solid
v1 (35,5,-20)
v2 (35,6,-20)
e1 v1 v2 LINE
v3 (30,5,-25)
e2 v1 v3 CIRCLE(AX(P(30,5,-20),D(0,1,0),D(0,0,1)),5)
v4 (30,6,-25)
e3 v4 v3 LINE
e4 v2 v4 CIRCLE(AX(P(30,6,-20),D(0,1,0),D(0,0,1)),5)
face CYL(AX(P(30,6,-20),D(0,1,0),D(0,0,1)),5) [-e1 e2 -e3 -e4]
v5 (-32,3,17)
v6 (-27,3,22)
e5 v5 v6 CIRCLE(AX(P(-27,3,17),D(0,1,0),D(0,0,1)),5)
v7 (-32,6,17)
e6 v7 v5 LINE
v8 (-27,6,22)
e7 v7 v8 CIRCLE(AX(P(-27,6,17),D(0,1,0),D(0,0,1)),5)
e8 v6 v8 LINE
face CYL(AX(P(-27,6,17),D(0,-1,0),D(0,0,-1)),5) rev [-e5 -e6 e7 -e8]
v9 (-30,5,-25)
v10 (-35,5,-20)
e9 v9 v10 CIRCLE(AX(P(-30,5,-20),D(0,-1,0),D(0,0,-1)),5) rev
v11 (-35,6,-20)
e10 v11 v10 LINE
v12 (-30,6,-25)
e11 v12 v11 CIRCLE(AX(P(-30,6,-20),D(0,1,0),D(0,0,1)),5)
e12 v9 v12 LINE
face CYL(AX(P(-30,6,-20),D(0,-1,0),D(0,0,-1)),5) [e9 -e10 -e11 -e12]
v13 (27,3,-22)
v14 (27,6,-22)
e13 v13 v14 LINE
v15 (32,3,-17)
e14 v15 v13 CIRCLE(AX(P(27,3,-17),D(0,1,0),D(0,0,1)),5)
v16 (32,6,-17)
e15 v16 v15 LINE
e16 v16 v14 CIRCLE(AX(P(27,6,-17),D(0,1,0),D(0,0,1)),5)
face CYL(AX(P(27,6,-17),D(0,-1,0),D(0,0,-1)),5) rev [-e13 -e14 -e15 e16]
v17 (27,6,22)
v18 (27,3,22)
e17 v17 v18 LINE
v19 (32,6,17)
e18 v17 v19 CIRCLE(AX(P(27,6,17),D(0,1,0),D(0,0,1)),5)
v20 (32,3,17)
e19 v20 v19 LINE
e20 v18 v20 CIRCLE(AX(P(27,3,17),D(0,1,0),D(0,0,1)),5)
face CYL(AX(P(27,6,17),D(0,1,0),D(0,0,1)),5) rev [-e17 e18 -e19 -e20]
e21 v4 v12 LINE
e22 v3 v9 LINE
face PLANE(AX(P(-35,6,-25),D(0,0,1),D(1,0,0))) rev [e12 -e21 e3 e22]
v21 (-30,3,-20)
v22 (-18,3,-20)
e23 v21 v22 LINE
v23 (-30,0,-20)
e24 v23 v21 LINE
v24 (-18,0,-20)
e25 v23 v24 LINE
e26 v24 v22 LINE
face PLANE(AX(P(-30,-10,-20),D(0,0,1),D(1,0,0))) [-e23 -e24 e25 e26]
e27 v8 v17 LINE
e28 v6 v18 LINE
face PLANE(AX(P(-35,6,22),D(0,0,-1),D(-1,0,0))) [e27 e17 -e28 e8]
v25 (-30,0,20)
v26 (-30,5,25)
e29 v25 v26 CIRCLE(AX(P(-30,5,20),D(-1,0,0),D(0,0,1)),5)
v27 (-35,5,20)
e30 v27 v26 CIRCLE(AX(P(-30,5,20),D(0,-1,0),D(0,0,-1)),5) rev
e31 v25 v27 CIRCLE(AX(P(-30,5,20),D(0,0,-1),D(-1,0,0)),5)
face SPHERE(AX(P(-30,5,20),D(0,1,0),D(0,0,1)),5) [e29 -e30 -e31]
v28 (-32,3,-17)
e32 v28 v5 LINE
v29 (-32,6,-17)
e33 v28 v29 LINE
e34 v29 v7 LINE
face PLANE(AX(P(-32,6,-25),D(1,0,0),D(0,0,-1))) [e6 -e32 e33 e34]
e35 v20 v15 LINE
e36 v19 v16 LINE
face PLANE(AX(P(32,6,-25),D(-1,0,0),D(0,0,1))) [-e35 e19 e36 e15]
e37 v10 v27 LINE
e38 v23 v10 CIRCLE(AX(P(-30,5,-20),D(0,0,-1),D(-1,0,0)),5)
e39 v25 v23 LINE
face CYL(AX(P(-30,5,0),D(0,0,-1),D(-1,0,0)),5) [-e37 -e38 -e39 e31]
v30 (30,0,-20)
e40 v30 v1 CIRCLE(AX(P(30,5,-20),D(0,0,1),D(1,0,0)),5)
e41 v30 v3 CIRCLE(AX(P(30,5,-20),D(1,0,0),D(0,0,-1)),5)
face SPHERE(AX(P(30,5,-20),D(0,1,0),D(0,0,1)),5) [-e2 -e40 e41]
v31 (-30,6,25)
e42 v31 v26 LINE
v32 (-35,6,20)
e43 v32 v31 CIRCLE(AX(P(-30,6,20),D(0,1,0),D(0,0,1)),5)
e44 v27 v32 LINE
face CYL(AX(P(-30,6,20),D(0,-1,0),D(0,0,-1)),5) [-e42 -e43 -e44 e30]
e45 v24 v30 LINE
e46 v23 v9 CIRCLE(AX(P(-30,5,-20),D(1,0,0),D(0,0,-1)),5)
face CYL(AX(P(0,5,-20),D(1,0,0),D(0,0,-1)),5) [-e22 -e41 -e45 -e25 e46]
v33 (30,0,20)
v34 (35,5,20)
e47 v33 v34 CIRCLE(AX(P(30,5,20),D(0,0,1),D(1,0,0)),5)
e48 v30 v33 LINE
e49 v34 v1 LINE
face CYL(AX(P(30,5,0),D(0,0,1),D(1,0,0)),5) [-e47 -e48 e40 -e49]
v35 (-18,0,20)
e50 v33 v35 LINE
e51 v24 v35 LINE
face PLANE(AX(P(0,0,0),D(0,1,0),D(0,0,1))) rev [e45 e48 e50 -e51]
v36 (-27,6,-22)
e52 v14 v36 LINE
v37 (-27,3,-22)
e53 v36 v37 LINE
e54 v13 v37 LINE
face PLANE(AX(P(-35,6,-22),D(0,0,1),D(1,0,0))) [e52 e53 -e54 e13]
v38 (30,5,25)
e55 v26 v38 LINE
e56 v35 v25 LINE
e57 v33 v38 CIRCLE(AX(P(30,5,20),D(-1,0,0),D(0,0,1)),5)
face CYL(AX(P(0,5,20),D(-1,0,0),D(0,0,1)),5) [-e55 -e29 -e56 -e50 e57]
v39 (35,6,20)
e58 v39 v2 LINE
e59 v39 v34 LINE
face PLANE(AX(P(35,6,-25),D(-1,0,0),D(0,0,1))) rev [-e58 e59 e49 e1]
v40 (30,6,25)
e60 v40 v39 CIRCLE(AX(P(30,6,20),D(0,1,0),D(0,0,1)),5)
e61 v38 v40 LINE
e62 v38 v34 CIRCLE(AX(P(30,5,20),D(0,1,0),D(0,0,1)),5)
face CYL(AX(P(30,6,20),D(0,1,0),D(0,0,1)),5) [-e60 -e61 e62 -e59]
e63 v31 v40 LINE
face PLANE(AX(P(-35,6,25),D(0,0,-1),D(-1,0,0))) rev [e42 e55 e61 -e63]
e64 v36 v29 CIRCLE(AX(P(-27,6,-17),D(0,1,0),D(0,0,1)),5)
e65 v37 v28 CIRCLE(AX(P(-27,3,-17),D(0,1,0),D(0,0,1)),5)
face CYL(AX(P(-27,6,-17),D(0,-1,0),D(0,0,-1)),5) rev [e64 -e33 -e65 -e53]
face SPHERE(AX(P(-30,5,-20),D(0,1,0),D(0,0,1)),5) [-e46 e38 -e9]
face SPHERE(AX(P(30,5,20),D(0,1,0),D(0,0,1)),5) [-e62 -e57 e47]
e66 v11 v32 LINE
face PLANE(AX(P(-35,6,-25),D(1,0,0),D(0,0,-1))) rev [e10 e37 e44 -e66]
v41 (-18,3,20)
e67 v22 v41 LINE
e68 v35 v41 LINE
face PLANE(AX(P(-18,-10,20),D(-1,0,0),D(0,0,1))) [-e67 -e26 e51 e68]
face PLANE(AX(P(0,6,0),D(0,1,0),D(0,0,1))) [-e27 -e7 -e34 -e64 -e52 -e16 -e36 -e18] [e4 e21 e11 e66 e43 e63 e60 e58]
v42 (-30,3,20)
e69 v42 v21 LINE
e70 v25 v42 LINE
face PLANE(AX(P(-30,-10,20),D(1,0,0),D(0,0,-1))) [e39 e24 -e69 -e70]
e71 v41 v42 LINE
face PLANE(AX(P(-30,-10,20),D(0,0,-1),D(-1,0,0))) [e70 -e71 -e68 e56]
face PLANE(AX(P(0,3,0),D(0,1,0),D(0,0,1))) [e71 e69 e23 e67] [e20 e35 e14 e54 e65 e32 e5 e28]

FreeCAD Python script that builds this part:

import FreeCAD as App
import Part
import Sketcher
from FreeCAD import Vector
Q = App.Units.Quantity


def edges_at(feature, points):
    """Names of the edges that pass closest to the given points."""
    edges = feature.Shape.Edges
    near = lambda p: min(range(len(edges)), key=lambda i: edges[i].distToShape(Part.Vertex(*p))[0])
    return sorted({f"Edge{near(p) + 1}" for p in points})


def faces_at(feature, points):
    """Names of the faces that lie closest to the given points."""
    faces = feature.Shape.Faces
    near = lambda p: min(range(len(faces)), key=lambda i: faces[i].distToShape(Part.Vertex(*p))[0])
    return sorted({f"Face{near(p) + 1}" for p in points})


def add_polygon(sketch, points):
    """Adds a closed chain of lines whose ends are joined by coincident constraints."""
    first, n = sketch.GeometryCount, len(points)
    for a, b in zip(points, points[1:] + points[:1]):
        sketch.addGeometry(Part.LineSegment(App.Vector(*a, 0), App.Vector(*b, 0)), False)
    for i in range(n):
        sketch.addConstraint(Sketcher.Constraint("Coincident", first + i, 2, first + (i + 1) % n, 1))

doc = App.newDocument("Part")
body = doc.addObject("PartDesign::Body", "Body")

# Sketch on XZ plane
sketch1 = body.newObject("Sketcher::SketchObject", "Sketch")
sketch1.AttachmentSupport = (doc.getObject("XZ_Plane"), [""])
sketch1.MapMode = "FlatFace"
add_polygon(sketch1, [(-35, -25), (-35, 25), (35, 25), (35, -25)])  # lines 0-3
sketch1.addConstraint(Sketcher.Constraint("Vertical", 0))
sketch1.addConstraint(Sketcher.Constraint("Horizontal", 1))
sketch1.addConstraint(Sketcher.Constraint("Vertical", 2))
sketch1.addConstraint(Sketcher.Constraint("Horizontal", 3))
sketch1.addConstraint(Sketcher.Constraint("Symmetric", 0, 2, 2, 2, -1, 1))
sketch1.addConstraint(Sketcher.Constraint("DistanceX", 1, 1, 1, 2, Q("70 mm")))
sketch1.addConstraint(Sketcher.Constraint("DistanceY", 0, 1, 0, 2, Q("50 mm")))
pad1 = body.newObject("PartDesign::Pad", "Pad")
pad1.Profile = sketch1
pad1.Length = 6
pad1.Reversed = True
doc.recompute()

thickness = body.newObject("PartDesign::Thickness", "Thickness")
thickness.Base = (pad1, faces_at(pad1, [(0, 6, 0)]))
thickness.Value = 3
thickness.Reversed = True
thickness.Join = "Intersection"
doc.recompute()

fillet = body.newObject("PartDesign::Fillet", "Fillet")
fillet.Base = (thickness, edges_at(thickness, [(35, 3, 25)]))
fillet.Radius = 5
doc.recompute()

fillet2 = body.newObject("PartDesign::Fillet", "Fillet001")
fillet2.Base = (fillet, edges_at(fillet, [(35, 3, -25)]))
fillet2.Radius = 5
doc.recompute()

fillet3 = body.newObject("PartDesign::Fillet", "Fillet002")
fillet3.Base = (fillet2, edges_at(fillet2, [(-35, 3, 25)]))
fillet3.Radius = 5
doc.recompute()

fillet4 = body.newObject("PartDesign::Fillet", "Fillet003")
fillet4.Base = (fillet3, edges_at(fillet3, [(-35, 3, -25)]))
fillet4.Radius = 5
doc.recompute()

fillet5 = body.newObject("PartDesign::Fillet", "Fillet004")
fillet5.Base = (fillet4, edges_at(fillet4, [
    (35, 0, 0),
    (0, 0, -25),
    (0, 0, 25),
    (-35, 0, 0),
]))
fillet5.Radius = 5
doc.recompute()

fillet6 = body.newObject("PartDesign::Fillet", "Fillet005")
fillet6.Base = (fillet5, edges_at(fillet5, [(32, 4.5, 22)]))
fillet6.Radius = 5
doc.recompute()

fillet7 = body.newObject("PartDesign::Fillet", "Fillet006")
fillet7.Base = (fillet6, edges_at(fillet6, [(-32, 4.5, 22)]))
fillet7.Radius = 5
doc.recompute()

fillet8 = body.newObject("PartDesign::Fillet", "Fillet007")
fillet8.Base = (fillet7, edges_at(fillet7, [(-32, 4.5, -22)]))
fillet8.Radius = 5
doc.recompute()

fillet9 = body.newObject("PartDesign::Fillet", "Fillet008")
fillet9.Base = (fillet8, edges_at(fillet8, [(32, 4.5, -22)]))
fillet9.Radius = 5

# Sketch on XZ plane
sketch2 = body.newObject("Sketcher::SketchObject", "Sketch001")
sketch2.AttachmentSupport = (doc.getObject("XZ_Plane"), [""])
sketch2.MapMode = "FlatFace"
add_polygon(sketch2, [(-30, 20), (-30, -20), (-18, -20), (-18, 20)])  # lines 0-3
sketch2.addConstraint(Sketcher.Constraint("Vertical", 0))
sketch2.addConstraint(Sketcher.Constraint("Horizontal", 1))
sketch2.addConstraint(Sketcher.Constraint("Vertical", 2))
sketch2.addConstraint(Sketcher.Constraint("Horizontal", 3))
sketch2.addConstraint(Sketcher.Constraint("DistanceX", 1, 1, 1, 2, Q("12 mm")))
sketch2.addConstraint(Sketcher.Constraint("DistanceY", 0, 2, 0, 1, Q("40 mm")))
sketch2.addConstraint(Sketcher.Constraint("DistanceX", 0, 2, -1, 1, Q("30 mm")))
sketch2.addConstraint(Sketcher.Constraint("DistanceY", 0, 2, -1, 1, Q("20 mm")))
pocket1 = body.newObject("PartDesign::Pocket", "Pocket")
pocket1.Profile = sketch2
pocket1.Type = "ThroughAll"
pocket1.Midplane = True

doc.recompute()
